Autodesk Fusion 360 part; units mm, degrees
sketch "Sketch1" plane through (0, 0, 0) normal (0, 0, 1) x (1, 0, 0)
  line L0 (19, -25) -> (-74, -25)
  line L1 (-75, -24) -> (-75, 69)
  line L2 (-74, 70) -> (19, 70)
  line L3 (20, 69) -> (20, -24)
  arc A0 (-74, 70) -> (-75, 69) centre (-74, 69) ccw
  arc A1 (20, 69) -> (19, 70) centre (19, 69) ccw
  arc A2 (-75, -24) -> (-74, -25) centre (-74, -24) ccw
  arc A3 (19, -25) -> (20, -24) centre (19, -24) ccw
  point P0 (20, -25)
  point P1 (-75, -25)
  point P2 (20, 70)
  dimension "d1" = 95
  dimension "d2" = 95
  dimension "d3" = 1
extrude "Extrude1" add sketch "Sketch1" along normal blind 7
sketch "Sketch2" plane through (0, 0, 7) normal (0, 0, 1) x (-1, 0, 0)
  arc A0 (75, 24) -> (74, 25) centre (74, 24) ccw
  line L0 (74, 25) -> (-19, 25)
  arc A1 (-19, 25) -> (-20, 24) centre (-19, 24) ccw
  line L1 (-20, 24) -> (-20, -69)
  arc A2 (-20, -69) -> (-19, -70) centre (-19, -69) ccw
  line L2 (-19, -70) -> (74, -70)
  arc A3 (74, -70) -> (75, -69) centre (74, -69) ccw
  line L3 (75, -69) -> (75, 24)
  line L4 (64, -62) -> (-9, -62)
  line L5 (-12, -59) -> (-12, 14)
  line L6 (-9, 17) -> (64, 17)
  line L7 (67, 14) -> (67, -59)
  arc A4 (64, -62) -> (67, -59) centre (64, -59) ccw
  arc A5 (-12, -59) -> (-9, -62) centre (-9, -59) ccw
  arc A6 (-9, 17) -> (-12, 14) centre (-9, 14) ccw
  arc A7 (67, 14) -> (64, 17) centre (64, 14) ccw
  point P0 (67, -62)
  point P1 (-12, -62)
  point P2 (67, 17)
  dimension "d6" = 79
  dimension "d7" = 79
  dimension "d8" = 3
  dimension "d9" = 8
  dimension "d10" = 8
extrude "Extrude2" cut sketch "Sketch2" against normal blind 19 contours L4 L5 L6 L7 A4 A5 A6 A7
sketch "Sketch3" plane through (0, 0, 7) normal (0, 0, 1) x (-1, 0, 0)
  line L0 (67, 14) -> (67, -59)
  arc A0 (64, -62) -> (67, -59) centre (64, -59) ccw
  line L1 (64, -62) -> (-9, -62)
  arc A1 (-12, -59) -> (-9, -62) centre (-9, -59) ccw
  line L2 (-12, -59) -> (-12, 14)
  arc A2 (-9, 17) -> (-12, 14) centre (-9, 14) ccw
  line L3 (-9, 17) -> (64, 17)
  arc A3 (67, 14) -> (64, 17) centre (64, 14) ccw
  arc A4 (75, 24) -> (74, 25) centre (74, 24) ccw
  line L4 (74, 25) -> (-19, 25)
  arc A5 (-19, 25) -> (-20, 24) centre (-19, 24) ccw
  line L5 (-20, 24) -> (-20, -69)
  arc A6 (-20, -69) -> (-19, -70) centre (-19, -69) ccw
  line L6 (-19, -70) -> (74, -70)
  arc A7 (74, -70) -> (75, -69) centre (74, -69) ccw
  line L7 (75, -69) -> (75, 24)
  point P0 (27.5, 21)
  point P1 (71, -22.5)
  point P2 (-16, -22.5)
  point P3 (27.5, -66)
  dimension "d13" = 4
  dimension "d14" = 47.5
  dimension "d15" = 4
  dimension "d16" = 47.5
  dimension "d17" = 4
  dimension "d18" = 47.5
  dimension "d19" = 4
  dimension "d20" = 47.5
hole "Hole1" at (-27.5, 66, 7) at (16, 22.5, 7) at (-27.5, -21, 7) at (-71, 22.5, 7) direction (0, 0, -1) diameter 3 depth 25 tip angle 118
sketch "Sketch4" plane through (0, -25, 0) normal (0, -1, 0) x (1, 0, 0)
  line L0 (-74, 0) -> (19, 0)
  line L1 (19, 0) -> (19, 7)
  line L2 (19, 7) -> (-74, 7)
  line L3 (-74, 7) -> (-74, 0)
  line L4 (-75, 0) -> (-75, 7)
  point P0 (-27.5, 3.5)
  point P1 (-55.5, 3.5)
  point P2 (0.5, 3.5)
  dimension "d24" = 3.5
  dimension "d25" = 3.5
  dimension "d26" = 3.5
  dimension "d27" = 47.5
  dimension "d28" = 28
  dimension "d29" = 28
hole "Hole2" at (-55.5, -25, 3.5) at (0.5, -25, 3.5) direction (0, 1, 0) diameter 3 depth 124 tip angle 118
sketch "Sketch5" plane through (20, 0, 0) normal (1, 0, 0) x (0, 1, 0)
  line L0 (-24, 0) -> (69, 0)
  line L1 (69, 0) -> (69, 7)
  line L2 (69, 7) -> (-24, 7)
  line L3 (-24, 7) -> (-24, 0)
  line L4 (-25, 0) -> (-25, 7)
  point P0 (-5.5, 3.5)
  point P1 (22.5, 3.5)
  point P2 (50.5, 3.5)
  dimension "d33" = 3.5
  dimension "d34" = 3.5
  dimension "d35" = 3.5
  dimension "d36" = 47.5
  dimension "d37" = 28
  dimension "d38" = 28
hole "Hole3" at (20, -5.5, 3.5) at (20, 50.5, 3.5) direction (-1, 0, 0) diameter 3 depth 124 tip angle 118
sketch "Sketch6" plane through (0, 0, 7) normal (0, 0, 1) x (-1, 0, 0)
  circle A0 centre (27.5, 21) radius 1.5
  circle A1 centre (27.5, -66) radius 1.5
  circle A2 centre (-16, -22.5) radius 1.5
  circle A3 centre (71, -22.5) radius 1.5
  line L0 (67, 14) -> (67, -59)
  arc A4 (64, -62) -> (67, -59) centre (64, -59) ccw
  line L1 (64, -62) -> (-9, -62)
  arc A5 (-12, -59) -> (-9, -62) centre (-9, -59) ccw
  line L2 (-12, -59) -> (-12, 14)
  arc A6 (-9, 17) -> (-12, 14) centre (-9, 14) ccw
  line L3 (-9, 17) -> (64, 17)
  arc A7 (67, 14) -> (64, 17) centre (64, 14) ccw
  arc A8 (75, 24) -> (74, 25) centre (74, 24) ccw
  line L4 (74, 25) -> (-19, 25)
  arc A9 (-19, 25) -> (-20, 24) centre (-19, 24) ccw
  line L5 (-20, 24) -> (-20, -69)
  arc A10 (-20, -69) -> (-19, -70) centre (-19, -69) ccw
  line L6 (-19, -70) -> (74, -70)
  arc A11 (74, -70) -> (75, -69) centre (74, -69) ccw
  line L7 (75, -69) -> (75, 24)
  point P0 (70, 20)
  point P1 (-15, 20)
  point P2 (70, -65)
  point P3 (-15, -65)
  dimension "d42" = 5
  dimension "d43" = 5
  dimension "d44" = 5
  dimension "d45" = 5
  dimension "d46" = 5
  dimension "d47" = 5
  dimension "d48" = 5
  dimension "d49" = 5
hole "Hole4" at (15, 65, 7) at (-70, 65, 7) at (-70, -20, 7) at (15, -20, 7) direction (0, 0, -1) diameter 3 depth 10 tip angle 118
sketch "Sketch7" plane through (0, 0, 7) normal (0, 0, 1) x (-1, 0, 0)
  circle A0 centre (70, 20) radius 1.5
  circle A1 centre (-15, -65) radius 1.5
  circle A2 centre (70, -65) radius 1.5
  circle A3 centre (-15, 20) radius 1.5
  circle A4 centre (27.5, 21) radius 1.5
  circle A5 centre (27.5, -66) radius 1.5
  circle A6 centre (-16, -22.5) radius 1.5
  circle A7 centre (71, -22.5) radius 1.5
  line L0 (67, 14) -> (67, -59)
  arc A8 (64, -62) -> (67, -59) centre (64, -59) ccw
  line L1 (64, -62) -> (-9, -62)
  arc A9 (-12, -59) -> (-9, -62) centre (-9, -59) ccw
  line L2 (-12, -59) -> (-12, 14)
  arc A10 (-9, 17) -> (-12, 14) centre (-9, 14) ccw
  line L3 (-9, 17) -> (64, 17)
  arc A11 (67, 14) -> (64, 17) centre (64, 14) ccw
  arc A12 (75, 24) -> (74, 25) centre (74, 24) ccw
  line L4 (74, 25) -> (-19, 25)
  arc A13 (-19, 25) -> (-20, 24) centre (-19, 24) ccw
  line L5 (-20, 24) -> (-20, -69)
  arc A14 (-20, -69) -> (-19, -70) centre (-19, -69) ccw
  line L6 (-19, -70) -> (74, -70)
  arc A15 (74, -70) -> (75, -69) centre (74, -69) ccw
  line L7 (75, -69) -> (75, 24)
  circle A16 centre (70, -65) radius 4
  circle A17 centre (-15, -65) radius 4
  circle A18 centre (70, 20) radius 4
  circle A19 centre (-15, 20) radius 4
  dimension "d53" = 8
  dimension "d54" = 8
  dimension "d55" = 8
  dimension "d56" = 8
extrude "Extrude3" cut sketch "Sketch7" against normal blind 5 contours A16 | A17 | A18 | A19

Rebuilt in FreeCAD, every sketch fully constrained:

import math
import FreeCAD as App
import Part
import Sketcher
from FreeCAD import Vector

doc = App.newDocument("Part")
body = doc.addObject("PartDesign::Body", "Body")

sketch1 = body.newObject("Sketcher::SketchObject", "Sketch")
sketch1.AttachmentSupport = (doc.getObject("XY_Plane"), [""])
sketch1.MapMode = "FlatFace"
sketch1.addGeometry([
    Part.LineSegment(Vector(-74, -25, 0), Vector(19, -25, 0)),
    Part.ArcOfCircle(Part.Circle(Vector(19, -24, 0), Vector(0, 0, 1), 1), math.radians(-90), math.radians(0)),
    Part.LineSegment(Vector(20, -24, 0), Vector(20, 69, 0)),
    Part.ArcOfCircle(Part.Circle(Vector(19, 69, 0), Vector(0, 0, 1), 1), math.radians(0), math.radians(90)),
    Part.LineSegment(Vector(19, 70, 0), Vector(-74, 70, 0)),
    Part.ArcOfCircle(Part.Circle(Vector(-74, 69, 0), Vector(0, 0, 1), 1), math.radians(90), math.radians(180)),
    Part.LineSegment(Vector(-75, 69, 0), Vector(-75, -24, 0)),
    Part.ArcOfCircle(Part.Circle(Vector(-74, -24, 0), Vector(0, 0, 1), 1), math.radians(180), math.radians(270)),
], False)
sketch1.addConstraint([
    Sketcher.Constraint("Tangent", 0, 2, 1, 1),
    Sketcher.Constraint("Tangent", 1, 2, 2, 1),
    Sketcher.Constraint("Tangent", 2, 2, 3, 1),
    Sketcher.Constraint("Tangent", 3, 2, 4, 1),
    Sketcher.Constraint("Tangent", 4, 2, 5, 1),
    Sketcher.Constraint("Tangent", 5, 2, 6, 1),
    Sketcher.Constraint("Tangent", 6, 2, 7, 1),
    Sketcher.Constraint("Tangent", 7, 2, 0, 1),
    Sketcher.Constraint("Horizontal", 0),
    Sketcher.Constraint("Vertical", 2),
    Sketcher.Constraint("Horizontal", 4),
    Sketcher.Constraint("Vertical", 6),
    Sketcher.Constraint("Equal", 1, 3),
    Sketcher.Constraint("Equal", 3, 5),
    Sketcher.Constraint("Equal", 5, 7),
    Sketcher.Constraint("Equal", 4, 2),
    Sketcher.Constraint("Radius", 1, 1.0),
    Sketcher.Constraint("DistanceX", 0, 1, 0, 2, 93.0),
    Sketcher.Constraint("DistanceX", -1, 1, 1, 3, 19.0),
    Sketcher.Constraint("DistanceY", 1, 3, -1, 1, 24.0),
])
pad1 = body.newObject("PartDesign::Pad", "Pad")
pad1.Profile = sketch1
pad1.Length = 7

sketch2 = body.newObject("Sketcher::SketchObject", "Sketch001")
sketch2.AttachmentSupport = (doc.getObject("XY_Plane"), [""])
sketch2.MapMode = "FlatFace"
sketch2.AttachmentOffset = App.Placement(Vector(0, 0, 7), App.Rotation())
sketch2.addGeometry([
    Part.LineSegment(Vector(9, 62, 0), Vector(-64, 62, 0)),
    Part.ArcOfCircle(Part.Circle(Vector(-64, 59, 0), Vector(0, 0, 1), 3), math.radians(90), math.radians(180)),
    Part.LineSegment(Vector(-67, 59, 0), Vector(-67, -14, 0)),
    Part.ArcOfCircle(Part.Circle(Vector(-64, -14, 0), Vector(0, 0, 1), 3), math.radians(180), math.radians(270)),
    Part.LineSegment(Vector(-64, -17, 0), Vector(9, -17, 0)),
    Part.ArcOfCircle(Part.Circle(Vector(9, -14, 0), Vector(0, 0, 1), 3), math.radians(-90), math.radians(0)),
    Part.LineSegment(Vector(12, -14, 0), Vector(12, 59, 0)),
    Part.ArcOfCircle(Part.Circle(Vector(9, 59, 0), Vector(0, 0, 1), 3), math.radians(0), math.radians(90)),
], False)
sketch2.addConstraint([
    Sketcher.Constraint("Tangent", 0, 2, 1, 1),
    Sketcher.Constraint("Tangent", 1, 2, 2, 1),
    Sketcher.Constraint("Tangent", 2, 2, 3, 1),
    Sketcher.Constraint("Tangent", 3, 2, 4, 1),
    Sketcher.Constraint("Tangent", 4, 2, 5, 1),
    Sketcher.Constraint("Tangent", 5, 2, 6, 1),
    Sketcher.Constraint("Tangent", 6, 2, 7, 1),
    Sketcher.Constraint("Tangent", 7, 2, 0, 1),
    Sketcher.Constraint("Horizontal", 0),
    Sketcher.Constraint("Vertical", 2),
    Sketcher.Constraint("Horizontal", 4),
    Sketcher.Constraint("Vertical", 6),
    Sketcher.Constraint("Equal", 1, 3),
    Sketcher.Constraint("Equal", 3, 5),
    Sketcher.Constraint("Equal", 5, 7),
    Sketcher.Constraint("Equal", 4, 2),
    Sketcher.Constraint("Radius", 1, 3.0),
    Sketcher.Constraint("DistanceX", 0, 2, 0, 1, 73.0),
    Sketcher.Constraint("DistanceX", 1, 3, -1, 1, 64.0),
    Sketcher.Constraint("DistanceY", -1, 1, 1, 3, 59.0),
])
pocket1 = body.newObject("PartDesign::Pocket", "Pocket")
pocket1.Profile = sketch2
pocket1.Length = 19

sketch3 = body.newObject("Sketcher::SketchObject", "Sketch002")
sketch3.AttachmentSupport = (doc.getObject("XY_Plane"), [""])
sketch3.MapMode = "FlatFace"
sketch3.AttachmentOffset = App.Placement(Vector(0, 0, 7), App.Rotation())
sketch3.addGeometry([
    Part.Circle(Vector(-27.5, 66, 0), Vector(0, 0, 1), 1.5),
    Part.Circle(Vector(16, 22.5, 0), Vector(0, 0, 1), 1.5),
    Part.Circle(Vector(-27.5, -21, 0), Vector(0, 0, 1), 1.5),
    Part.Circle(Vector(-71, 22.5, 0), Vector(0, 0, 1), 1.5),
], False)
sketch3.addConstraint([
    Sketcher.Constraint("Equal", 0, 1),
    Sketcher.Constraint("Equal", 1, 2),
    Sketcher.Constraint("Equal", 2, 3),
    Sketcher.Constraint("Horizontal", 1, 3, 3, 3),
    Sketcher.Constraint("Vertical", 0, 3, 2, 3),
    Sketcher.Constraint("Diameter", 0, 3.0),
    Sketcher.Constraint("DistanceY", -1, 1, 0, 3, 66.0),
    Sketcher.Constraint("DistanceX", -1, 1, 1, 3, 16.0),
    Sketcher.Constraint("DistanceY", 2, 3, -1, 1, 21.0),
    Sketcher.Constraint("DistanceX", 3, 3, -1, 1, 71.0),
    Sketcher.Constraint("DistanceX", 0, 3, -1, 1, 27.5),
    Sketcher.Constraint("DistanceY", -1, 1, 1, 3, 22.5),
])
doc.recompute()
hole = body.newObject("PartDesign::Hole", "Hole")
hole.Profile = sketch3
hole.ThreadType = "None"
hole.Diameter = 3
hole.DepthType = "Dimension"
hole.Depth = 25
hole.DrillPoint = "Angled"
hole.DrillPointAngle = 118

sketch4 = body.newObject("Sketcher::SketchObject", "Sketch003")
sketch4.AttachmentSupport = (doc.getObject("XZ_Plane"), [""])
sketch4.MapMode = "FlatFace"
sketch4.AttachmentOffset = App.Placement(Vector(0, 0, 25), App.Rotation())
sketch4.addGeometry([
    Part.Circle(Vector(-55.5, 3.5, 0), Vector(0, 0, 1), 1.5),
    Part.Circle(Vector(0.5, 3.5, 0), Vector(0, 0, 1), 1.5),
], False)
sketch4.addConstraint([
    Sketcher.Constraint("Equal", 0, 1),
    Sketcher.Constraint("Horizontal", 0, 3, 1, 3),
    Sketcher.Constraint("Diameter", 0, 3.0),
    Sketcher.Constraint("DistanceX", 0, 3, 1, 3, 56.0),
    Sketcher.Constraint("DistanceX", 0, 3, -1, 1, 55.5),
    Sketcher.Constraint("DistanceY", -1, 1, 0, 3, 3.5),
])
doc.recompute()
hole2 = body.newObject("PartDesign::Hole", "Hole001")
hole2.Profile = sketch4
hole2.ThreadType = "None"
hole2.Diameter = 3
hole2.DepthType = "Dimension"
hole2.Depth = 124
hole2.DrillPoint = "Angled"
hole2.DrillPointAngle = 118

sketch5 = body.newObject("Sketcher::SketchObject", "Sketch004")
sketch5.AttachmentSupport = (doc.getObject("YZ_Plane"), [""])
sketch5.MapMode = "FlatFace"
sketch5.AttachmentOffset = App.Placement(Vector(0, 0, 20), App.Rotation())
sketch5.addGeometry([
    Part.Circle(Vector(-5.5, 3.5, 0), Vector(0, 0, 1), 1.5),
    Part.Circle(Vector(50.5, 3.5, 0), Vector(0, 0, 1), 1.5),
], False)
sketch5.addConstraint([
    Sketcher.Constraint("Equal", 0, 1),
    Sketcher.Constraint("Horizontal", 0, 3, 1, 3),
    Sketcher.Constraint("Diameter", 0, 3.0),
    Sketcher.Constraint("DistanceX", 0, 3, 1, 3, 56.0),
    Sketcher.Constraint("DistanceX", 0, 3, -1, 1, 5.5),
    Sketcher.Constraint("DistanceY", -1, 1, 0, 3, 3.5),
])
doc.recompute()
hole3 = body.newObject("PartDesign::Hole", "Hole002")
hole3.Profile = sketch5
hole3.ThreadType = "None"
hole3.Diameter = 3
hole3.DepthType = "Dimension"
hole3.Depth = 124
hole3.DrillPoint = "Angled"
hole3.DrillPointAngle = 118

sketch6 = body.newObject("Sketcher::SketchObject", "Sketch005")
sketch6.AttachmentSupport = (doc.getObject("XY_Plane"), [""])
sketch6.MapMode = "FlatFace"
sketch6.AttachmentOffset = App.Placement(Vector(0, 0, 7), App.Rotation())
sketch6.addGeometry([
    Part.Circle(Vector(15, 65, 0), Vector(0, 0, 1), 1.5),
    Part.Circle(Vector(-70, 65, 0), Vector(0, 0, 1), 1.5),
    Part.Circle(Vector(-70, -20, 0), Vector(0, 0, 1), 1.5),
    Part.Circle(Vector(15, -20, 0), Vector(0, 0, 1), 1.5),
], False)
sketch6.addConstraint([
    Sketcher.Constraint("Equal", 0, 1),
    Sketcher.Constraint("Equal", 1, 2),
    Sketcher.Constraint("Equal", 2, 3),
    Sketcher.Constraint("Horizontal", 0, 3, 1, 3),
    Sketcher.Constraint("Horizontal", 2, 3, 3, 3),
    Sketcher.Constraint("Vertical", 1, 3, 2, 3),
    Sketcher.Constraint("Vertical", 0, 3, 3, 3),
    Sketcher.Constraint("Diameter", 0, 3.0),
    Sketcher.Constraint("DistanceX", -1, 1, 0, 3, 15.0),
    Sketcher.Constraint("DistanceY", -1, 1, 0, 3, 65.0),
    Sketcher.Constraint("DistanceX", 1, 3, -1, 1, 70.0),
    Sketcher.Constraint("DistanceY", 2, 3, -1, 1, 20.0),
])
doc.recompute()
hole4 = body.newObject("PartDesign::Hole", "Hole003")
hole4.Profile = sketch6
hole4.ThreadType = "None"
hole4.Diameter = 3
hole4.DepthType = "Dimension"
hole4.Depth = 10
hole4.DrillPoint = "Angled"
hole4.DrillPointAngle = 118

sketch7 = body.newObject("Sketcher::SketchObject", "Sketch006")
sketch7.AttachmentSupport = (doc.getObject("XY_Plane"), [""])
sketch7.MapMode = "FlatFace"
sketch7.AttachmentOffset = App.Placement(Vector(0, 0, 7), App.Rotation())
sketch7.addGeometry([
    Part.Circle(Vector(-70, 65, 0), Vector(0, 0, 1), 4),
    Part.Circle(Vector(-70, 65, 0), Vector(0, 0, 1), 1.5),
    Part.Circle(Vector(15, 65, 0), Vector(0, 0, 1), 4),
    Part.Circle(Vector(15, 65, 0), Vector(0, 0, 1), 1.5),
    Part.Circle(Vector(-70, -20, 0), Vector(0, 0, 1), 4),
    Part.Circle(Vector(-70, -20, 0), Vector(0, 0, 1), 1.5),
    Part.Circle(Vector(15, -20, 0), Vector(0, 0, 1), 4),
    Part.Circle(Vector(15, -20, 0), Vector(0, 0, 1), 1.5),
], False)
sketch7.addConstraint([
    Sketcher.Constraint("Coincident", 1, 3, 0, 3),
    Sketcher.Constraint("Coincident", 3, 3, 2, 3),
    Sketcher.Constraint("Coincident", 5, 3, 4, 3),
    Sketcher.Constraint("Coincident", 7, 3, 6, 3),
    Sketcher.Constraint("Equal", 0, 2),
    Sketcher.Constraint("Equal", 1, 3),
    Sketcher.Constraint("Equal", 2, 4),
    Sketcher.Constraint("Equal", 3, 5),
    Sketcher.Constraint("Equal", 4, 6),
    Sketcher.Constraint("Equal", 5, 7),
    Sketcher.Constraint("Horizontal", 1, 3, 2, 3),
    Sketcher.Constraint("Horizontal", 5, 3, 6, 3),
    Sketcher.Constraint("Vertical", 1, 3, 4, 3),
    Sketcher.Constraint("Vertical", 3, 3, 6, 3),
    Sketcher.Constraint("Diameter", 0, 8.0),
    Sketcher.Constraint("Diameter", 1, 3.0),
    Sketcher.Constraint("DistanceX", 0, 3, -1, 1, 70.0),
    Sketcher.Constraint("DistanceY", -1, 1, 0, 3, 65.0),
    Sketcher.Constraint("DistanceX", -1, 1, 2, 3, 15.0),
    Sketcher.Constraint("DistanceY", 4, 3, -1, 1, 20.0),
])
pocket2 = body.newObject("PartDesign::Pocket", "Pocket001")
pocket2.Profile = sketch7
pocket2.Length = 5

doc.recompute()
